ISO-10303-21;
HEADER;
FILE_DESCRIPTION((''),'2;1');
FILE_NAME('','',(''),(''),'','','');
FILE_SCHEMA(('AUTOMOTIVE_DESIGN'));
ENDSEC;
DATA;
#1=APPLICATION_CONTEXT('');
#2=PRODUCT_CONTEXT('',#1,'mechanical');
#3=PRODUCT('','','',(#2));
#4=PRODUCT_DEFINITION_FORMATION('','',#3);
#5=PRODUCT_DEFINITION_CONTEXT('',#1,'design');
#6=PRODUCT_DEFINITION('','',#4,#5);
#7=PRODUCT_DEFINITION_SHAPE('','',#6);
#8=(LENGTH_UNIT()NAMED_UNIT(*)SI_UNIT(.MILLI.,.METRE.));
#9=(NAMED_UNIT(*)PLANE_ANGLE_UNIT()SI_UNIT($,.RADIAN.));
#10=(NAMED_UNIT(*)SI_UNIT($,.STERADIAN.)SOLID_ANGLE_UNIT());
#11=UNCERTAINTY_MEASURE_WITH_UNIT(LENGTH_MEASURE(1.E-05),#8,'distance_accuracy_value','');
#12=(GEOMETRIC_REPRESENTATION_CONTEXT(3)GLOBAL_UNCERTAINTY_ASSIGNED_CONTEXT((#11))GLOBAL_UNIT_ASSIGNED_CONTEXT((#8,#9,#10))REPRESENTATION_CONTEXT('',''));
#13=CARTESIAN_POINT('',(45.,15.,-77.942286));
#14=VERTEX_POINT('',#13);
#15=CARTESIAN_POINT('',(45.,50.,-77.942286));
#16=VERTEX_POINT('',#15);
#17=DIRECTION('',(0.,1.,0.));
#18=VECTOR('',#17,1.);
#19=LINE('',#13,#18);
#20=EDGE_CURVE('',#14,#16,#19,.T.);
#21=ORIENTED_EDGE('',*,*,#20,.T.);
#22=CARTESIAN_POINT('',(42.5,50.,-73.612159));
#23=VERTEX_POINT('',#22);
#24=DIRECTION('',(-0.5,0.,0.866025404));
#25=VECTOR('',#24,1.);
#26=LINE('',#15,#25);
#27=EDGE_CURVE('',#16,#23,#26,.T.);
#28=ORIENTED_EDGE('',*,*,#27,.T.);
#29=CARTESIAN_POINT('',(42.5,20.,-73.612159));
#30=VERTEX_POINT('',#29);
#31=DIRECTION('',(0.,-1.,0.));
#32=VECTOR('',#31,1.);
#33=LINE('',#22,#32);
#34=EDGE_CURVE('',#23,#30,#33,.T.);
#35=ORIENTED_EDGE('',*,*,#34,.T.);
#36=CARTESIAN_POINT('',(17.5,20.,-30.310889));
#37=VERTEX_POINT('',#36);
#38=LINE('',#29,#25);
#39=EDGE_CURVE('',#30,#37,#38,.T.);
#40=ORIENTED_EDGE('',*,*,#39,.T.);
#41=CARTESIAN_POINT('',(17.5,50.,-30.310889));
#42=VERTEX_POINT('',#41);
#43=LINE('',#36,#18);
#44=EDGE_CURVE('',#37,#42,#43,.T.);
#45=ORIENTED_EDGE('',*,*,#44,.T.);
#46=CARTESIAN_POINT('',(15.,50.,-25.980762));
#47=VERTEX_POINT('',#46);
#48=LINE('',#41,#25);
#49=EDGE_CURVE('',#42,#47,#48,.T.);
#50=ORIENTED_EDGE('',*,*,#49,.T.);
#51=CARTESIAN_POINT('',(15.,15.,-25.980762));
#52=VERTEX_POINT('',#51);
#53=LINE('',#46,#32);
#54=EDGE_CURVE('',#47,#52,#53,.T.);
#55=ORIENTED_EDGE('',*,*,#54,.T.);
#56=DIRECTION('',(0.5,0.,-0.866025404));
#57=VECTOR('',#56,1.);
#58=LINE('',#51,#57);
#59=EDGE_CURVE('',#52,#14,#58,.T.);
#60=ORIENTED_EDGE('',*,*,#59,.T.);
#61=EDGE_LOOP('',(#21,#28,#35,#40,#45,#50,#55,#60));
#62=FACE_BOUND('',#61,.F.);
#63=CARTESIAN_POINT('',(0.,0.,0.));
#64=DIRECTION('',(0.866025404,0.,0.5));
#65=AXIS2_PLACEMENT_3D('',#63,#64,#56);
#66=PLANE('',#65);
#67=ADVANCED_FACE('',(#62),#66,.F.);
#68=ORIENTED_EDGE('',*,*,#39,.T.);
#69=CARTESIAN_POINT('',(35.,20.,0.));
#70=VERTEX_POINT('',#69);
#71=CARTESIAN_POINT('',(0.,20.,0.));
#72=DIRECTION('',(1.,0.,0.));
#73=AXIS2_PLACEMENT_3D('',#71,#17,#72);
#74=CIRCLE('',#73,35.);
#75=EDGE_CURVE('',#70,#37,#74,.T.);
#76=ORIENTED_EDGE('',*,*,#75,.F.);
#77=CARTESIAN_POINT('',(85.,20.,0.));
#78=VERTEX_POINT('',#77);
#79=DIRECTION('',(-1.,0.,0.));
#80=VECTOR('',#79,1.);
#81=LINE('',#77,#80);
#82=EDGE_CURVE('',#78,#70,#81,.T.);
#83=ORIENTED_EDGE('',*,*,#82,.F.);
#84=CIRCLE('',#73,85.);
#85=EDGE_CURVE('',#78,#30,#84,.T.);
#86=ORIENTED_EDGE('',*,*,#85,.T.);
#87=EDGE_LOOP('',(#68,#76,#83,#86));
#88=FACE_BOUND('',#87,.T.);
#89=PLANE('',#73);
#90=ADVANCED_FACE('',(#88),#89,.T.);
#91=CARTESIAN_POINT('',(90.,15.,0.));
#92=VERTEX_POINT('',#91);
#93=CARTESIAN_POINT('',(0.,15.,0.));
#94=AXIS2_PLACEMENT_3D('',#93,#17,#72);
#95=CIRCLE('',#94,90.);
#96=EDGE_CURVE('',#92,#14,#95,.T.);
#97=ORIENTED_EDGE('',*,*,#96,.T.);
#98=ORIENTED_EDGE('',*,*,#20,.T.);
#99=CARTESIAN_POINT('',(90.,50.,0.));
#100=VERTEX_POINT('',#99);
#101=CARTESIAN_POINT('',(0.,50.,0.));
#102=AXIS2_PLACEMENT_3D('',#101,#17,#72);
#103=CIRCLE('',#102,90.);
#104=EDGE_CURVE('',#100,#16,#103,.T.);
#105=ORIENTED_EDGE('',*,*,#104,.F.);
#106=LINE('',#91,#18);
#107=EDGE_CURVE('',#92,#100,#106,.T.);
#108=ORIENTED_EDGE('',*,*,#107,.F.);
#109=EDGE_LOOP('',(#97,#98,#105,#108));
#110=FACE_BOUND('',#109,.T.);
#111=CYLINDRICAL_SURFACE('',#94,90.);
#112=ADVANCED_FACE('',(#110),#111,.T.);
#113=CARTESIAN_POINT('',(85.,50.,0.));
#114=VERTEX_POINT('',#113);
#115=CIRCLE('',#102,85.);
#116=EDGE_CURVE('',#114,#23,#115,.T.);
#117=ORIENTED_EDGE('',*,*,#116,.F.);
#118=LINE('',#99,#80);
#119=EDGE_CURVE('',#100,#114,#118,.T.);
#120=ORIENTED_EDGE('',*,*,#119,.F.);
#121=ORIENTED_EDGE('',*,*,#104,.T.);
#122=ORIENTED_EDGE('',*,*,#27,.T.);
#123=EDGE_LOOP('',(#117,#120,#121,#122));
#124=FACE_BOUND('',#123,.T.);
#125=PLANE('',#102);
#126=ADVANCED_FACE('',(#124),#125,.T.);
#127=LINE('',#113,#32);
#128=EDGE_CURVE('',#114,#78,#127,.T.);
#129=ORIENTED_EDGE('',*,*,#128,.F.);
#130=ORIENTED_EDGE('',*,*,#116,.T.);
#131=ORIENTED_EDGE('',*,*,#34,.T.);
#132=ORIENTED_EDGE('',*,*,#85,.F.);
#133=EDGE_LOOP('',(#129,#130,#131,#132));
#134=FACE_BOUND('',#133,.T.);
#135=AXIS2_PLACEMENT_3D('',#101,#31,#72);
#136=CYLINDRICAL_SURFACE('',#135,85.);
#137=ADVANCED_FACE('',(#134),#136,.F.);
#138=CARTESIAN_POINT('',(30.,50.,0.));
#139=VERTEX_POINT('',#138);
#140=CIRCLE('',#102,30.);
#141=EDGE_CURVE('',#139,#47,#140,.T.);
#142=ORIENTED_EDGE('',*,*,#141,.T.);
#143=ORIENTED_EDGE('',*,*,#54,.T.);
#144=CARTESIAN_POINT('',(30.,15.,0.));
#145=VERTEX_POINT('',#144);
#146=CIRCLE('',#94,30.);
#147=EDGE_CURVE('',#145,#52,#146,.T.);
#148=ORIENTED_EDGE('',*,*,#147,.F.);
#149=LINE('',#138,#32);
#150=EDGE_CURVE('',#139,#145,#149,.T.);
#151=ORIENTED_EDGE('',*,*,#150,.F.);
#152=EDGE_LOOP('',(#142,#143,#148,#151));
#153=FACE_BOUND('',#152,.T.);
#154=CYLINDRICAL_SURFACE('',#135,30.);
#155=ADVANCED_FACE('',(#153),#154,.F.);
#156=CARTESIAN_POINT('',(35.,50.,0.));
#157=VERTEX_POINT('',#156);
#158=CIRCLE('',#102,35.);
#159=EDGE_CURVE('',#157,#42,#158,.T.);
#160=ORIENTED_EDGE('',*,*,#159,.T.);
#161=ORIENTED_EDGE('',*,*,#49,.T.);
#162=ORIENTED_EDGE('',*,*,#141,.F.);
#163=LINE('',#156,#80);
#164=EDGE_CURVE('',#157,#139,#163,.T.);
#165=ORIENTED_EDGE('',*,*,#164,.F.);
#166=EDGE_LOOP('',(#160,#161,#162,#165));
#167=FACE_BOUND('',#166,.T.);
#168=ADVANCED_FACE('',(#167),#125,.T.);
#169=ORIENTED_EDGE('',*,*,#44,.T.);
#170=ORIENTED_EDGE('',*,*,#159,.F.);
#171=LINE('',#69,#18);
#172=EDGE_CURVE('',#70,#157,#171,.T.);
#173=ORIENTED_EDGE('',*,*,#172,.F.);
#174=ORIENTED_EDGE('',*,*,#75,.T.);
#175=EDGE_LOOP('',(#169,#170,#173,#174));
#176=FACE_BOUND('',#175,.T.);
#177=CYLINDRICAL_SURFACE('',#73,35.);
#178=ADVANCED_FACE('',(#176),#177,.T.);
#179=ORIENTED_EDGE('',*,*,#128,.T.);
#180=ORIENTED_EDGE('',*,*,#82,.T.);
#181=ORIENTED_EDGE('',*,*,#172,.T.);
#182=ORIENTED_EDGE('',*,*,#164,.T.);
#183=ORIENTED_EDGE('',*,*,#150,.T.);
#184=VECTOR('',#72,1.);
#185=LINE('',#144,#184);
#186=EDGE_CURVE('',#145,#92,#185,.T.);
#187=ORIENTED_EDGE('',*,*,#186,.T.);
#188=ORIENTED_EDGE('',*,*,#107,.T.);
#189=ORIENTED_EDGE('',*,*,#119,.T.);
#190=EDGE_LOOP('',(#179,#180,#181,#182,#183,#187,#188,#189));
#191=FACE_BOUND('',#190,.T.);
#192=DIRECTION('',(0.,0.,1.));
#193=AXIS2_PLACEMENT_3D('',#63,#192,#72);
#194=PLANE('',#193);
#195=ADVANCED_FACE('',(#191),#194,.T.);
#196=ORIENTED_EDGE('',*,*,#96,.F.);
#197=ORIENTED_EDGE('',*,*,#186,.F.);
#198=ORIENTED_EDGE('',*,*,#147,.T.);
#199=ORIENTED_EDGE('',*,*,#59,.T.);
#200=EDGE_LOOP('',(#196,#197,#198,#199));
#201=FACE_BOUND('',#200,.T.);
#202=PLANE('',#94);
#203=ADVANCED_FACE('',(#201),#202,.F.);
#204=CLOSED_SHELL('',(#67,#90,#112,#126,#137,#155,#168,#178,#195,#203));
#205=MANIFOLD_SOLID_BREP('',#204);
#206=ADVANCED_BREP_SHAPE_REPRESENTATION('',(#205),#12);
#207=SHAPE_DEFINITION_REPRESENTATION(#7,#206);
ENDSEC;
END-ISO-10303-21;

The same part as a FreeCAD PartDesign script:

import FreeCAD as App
import Part
import Sketcher

V = App.Vector
Q = App.Units.Quantity

doc = App.newDocument("Part")
body = doc.addObject("PartDesign::Body", "Body")

# Sketch on XY plane
sketch1 = doc.addObject("Sketcher::SketchObject", "Sketch")
body.addObject(sketch1)
sketch1.AttachmentSupport = (doc.XY_Plane, [""])
sketch1.MapMode = "FlatFace"
sketch1.addGeometry([
    Part.LineSegment(V(35, 50, 0), V(30, 50, 0)),  # 0
    Part.LineSegment(V(30, 50, 0), V(30, 15, 0)),  # 1
    Part.LineSegment(V(30, 15, 0), V(90, 15, 0)),  # 2
    Part.LineSegment(V(90, 15, 0), V(90, 50, 0)),  # 3
    Part.LineSegment(V(90, 50, 0), V(85, 50, 0)),  # 4
    Part.LineSegment(V(85, 50, 0), V(85, 20, 0)),  # 5
    Part.LineSegment(V(85, 20, 0), V(35, 20, 0)),  # 6
    Part.LineSegment(V(35, 20, 0), V(35, 50, 0)),  # 7
], False)
sketch1.addConstraint([
    Sketcher.Constraint("Coincident", 0, 2, 1, 1),
    Sketcher.Constraint("Coincident", 1, 2, 2, 1),
    Sketcher.Constraint("Coincident", 2, 2, 3, 1),
    Sketcher.Constraint("Coincident", 3, 2, 4, 1),
    Sketcher.Constraint("Coincident", 4, 2, 5, 1),
    Sketcher.Constraint("Coincident", 5, 2, 6, 1),
    Sketcher.Constraint("Coincident", 6, 2, 7, 1),
    Sketcher.Constraint("Coincident", 7, 2, 0, 1),
    Sketcher.Constraint("Horizontal", 0),
    Sketcher.Constraint("Vertical", 1),
    Sketcher.Constraint("Horizontal", 2),
    Sketcher.Constraint("Vertical", 3),
    Sketcher.Constraint("Horizontal", 4),
    Sketcher.Constraint("Vertical", 5),
    Sketcher.Constraint("Horizontal", 6),
    Sketcher.Constraint("Vertical", 7),
    Sketcher.Constraint("Horizontal", 0, 2, 3, 2),
    Sketcher.Constraint("Equal", 0, 4),
    Sketcher.Constraint("DistanceX", 0, 2, 0, 1, Q("5 mm")),
    Sketcher.Constraint("DistanceX", 2, 1, 2, 2, Q("60 mm")),
    Sketcher.Constraint("DistanceY", 1, 2, 1, 1, Q("35 mm")),
    Sketcher.Constraint("DistanceY", 5, 2, 5, 1, Q("30 mm")),
    Sketcher.Constraint("DistanceX", -1, 1, 0, 2, Q("30 mm")),
    Sketcher.Constraint("DistanceY", -1, 1, 0, 2, Q("50 mm")),
])
revolution = doc.addObject("PartDesign::Revolution", "Revolution")
body.addObject(revolution)
revolution.Profile = sketch1
revolution.ReferenceAxis = (sketch1, ["V_Axis"])
revolution.Angle = 60

doc.recompute()
